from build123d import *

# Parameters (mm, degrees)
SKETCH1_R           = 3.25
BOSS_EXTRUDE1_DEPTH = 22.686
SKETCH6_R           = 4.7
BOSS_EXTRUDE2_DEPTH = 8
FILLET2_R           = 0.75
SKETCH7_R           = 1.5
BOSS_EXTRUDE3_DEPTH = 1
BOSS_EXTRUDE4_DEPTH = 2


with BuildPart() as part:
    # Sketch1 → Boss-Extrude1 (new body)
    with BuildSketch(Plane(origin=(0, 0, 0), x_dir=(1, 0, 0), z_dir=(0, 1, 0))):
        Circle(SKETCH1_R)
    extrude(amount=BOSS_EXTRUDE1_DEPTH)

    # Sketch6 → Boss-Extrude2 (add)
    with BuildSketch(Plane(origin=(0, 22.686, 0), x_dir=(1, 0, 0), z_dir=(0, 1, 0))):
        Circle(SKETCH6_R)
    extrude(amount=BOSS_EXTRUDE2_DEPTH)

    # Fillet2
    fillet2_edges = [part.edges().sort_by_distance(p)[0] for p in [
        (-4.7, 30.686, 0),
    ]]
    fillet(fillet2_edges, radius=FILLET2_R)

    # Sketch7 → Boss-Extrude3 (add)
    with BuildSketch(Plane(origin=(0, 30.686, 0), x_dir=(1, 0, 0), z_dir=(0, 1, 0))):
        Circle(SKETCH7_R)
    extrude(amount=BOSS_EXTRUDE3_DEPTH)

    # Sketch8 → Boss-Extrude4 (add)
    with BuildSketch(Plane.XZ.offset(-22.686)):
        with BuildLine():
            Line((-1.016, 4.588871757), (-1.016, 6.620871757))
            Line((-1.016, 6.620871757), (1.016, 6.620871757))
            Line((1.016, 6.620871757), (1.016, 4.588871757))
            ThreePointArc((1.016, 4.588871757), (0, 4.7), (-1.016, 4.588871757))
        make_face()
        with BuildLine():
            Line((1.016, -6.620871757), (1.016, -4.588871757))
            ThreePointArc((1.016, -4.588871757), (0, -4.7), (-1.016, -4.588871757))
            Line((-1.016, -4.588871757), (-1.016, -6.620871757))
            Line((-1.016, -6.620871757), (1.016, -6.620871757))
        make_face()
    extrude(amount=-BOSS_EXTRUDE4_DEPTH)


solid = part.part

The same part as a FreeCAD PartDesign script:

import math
import FreeCAD as App
import Part
import Sketcher
Q = App.Units.Quantity


def edges_at(feature, points):
    """Names of the edges that pass closest to the given points."""
    edges = feature.Shape.Edges
    near = lambda p: min(range(len(edges)), key=lambda i: edges[i].distToShape(Part.Vertex(*p))[0])
    return sorted({f"Edge{near(p) + 1}" for p in points})

doc = App.newDocument("Part")
body = doc.addObject("PartDesign::Body", "Body")

sketch1 = doc.addObject("Sketcher::SketchObject", "Sketch")
body.addObject(sketch1)
sketch1.AttachmentSupport = (doc.XZ_Plane, [""])
sketch1.MapMode = "FlatFace"
sketch1.addGeometry(Part.Circle(App.Vector(0, 0, 0), App.Vector(0, 0, 1), 3.2), False)
sketch1.addConstraint([
    Sketcher.Constraint("Coincident", 0, 3, -1, 1),
    Sketcher.Constraint("Diameter", 0, Q("6.5 mm")),
])
pad1 = doc.addObject("PartDesign::Pad", "Pad")
body.addObject(pad1)
pad1.Profile = sketch1
pad1.Length = 22.686
pad1.Reversed = True

sketch2 = doc.addObject("Sketcher::SketchObject", "Sketch001")
body.addObject(sketch2)
sketch2.AttachmentSupport = (doc.XZ_Plane, [""])
sketch2.MapMode = "FlatFace"
sketch2.AttachmentOffset = App.Placement(App.Vector(0, 0, -22.686), App.Rotation())
sketch2.addGeometry(Part.Circle(App.Vector(0, 0, 0), App.Vector(0, 0, 1), 4.7), False)
sketch2.addConstraint([
    Sketcher.Constraint("Coincident", 0, 3, -1, 1),
    Sketcher.Constraint("Diameter", 0, Q("9.4 mm")),
])
pad2 = doc.addObject("PartDesign::Pad", "Pad001")
body.addObject(pad2)
pad2.Profile = sketch2
pad2.Length = 8
pad2.Reversed = True
doc.recompute()

fillet = doc.addObject("PartDesign::Fillet", "Fillet")
body.addObject(fillet)
fillet.Base = (pad2, edges_at(pad2, [(-4.7, 30.686, 0)]))
fillet.Radius = 0.75

sketch3 = doc.addObject("Sketcher::SketchObject", "Sketch002")
body.addObject(sketch3)
sketch3.AttachmentSupport = (doc.XZ_Plane, [""])
sketch3.MapMode = "FlatFace"
sketch3.AttachmentOffset = App.Placement(App.Vector(0, 0, -30.686), App.Rotation())
sketch3.addGeometry(Part.Circle(App.Vector(0, 0, 0), App.Vector(0, 0, 1), 1.5), False)
sketch3.addConstraint([
    Sketcher.Constraint("Coincident", 0, 3, -1, 1),
    Sketcher.Constraint("Diameter", 0, Q("3 mm")),
])
pad3 = doc.addObject("PartDesign::Pad", "Pad002")
body.addObject(pad3)
pad3.Profile = sketch3
pad3.Length = 1
pad3.Reversed = True

sketch4 = doc.addObject("Sketcher::SketchObject", "Sketch003")
body.addObject(sketch4)
sketch4.AttachmentSupport = (doc.XZ_Plane, [""])
sketch4.MapMode = "FlatFace"
sketch4.AttachmentOffset = App.Placement(App.Vector(0, 0, -22.686), App.Rotation())
sketch4.addGeometry([
    Part.LineSegment(App.Vector(-1, 6.6, 0), App.Vector(-1, 4.6, 0)),
    Part.ArcOfCircle(Part.Circle(App.Vector(0, 0, 0), App.Vector(0, 0, 1), 4.7), math.radians(78), math.radians(102)),
    Part.LineSegment(App.Vector(1, 4.6, 0), App.Vector(1, 6.6, 0)),
    Part.LineSegment(App.Vector(1, 6.6, 0), App.Vector(-1, 6.6, 0)),
    Part.LineSegment(App.Vector(1, -6.6, 0), App.Vector(1, -4.6, 0)),
    Part.ArcOfCircle(Part.Circle(App.Vector(0, 0, 0), App.Vector(0, 0, 1), 4.7), math.radians(-102), math.radians(-78)),
    Part.LineSegment(App.Vector(-1, -4.6, 0), App.Vector(-1, -6.6, 0)),
    Part.LineSegment(App.Vector(-1, -6.6, 0), App.Vector(1, -6.6, 0)),
], False)
sketch4.addConstraint([
    Sketcher.Constraint("Coincident", 0, 2, 1, 2),
    Sketcher.Constraint("Coincident", 1, 1, 2, 1),
    Sketcher.Constraint("Coincident", 2, 2, 3, 1),
    Sketcher.Constraint("Coincident", 3, 2, 0, 1),
    Sketcher.Constraint("Coincident", 4, 2, 5, 2),
    Sketcher.Constraint("Coincident", 5, 1, 6, 1),
    Sketcher.Constraint("Coincident", 6, 2, 7, 1),
    Sketcher.Constraint("Coincident", 7, 2, 4, 1),
    Sketcher.Constraint("Vertical", 0),
    Sketcher.Constraint("Vertical", 2),
    Sketcher.Constraint("Horizontal", 3),
    Sketcher.Constraint("Vertical", 4),
    Sketcher.Constraint("Vertical", 6),
    Sketcher.Constraint("Horizontal", 7),
    Sketcher.Constraint("Coincident", 1, 3, -1, 1),
    Sketcher.Constraint("Coincident", 5, 3, -1, 1),
    Sketcher.Constraint("Equal", 1, 5),
    Sketcher.Constraint("Symmetric", 2, 2, 6, 2, -1, 1),
    Sketcher.Constraint("Horizontal", 0, 2, 1, 1),
    Sketcher.Constraint("Horizontal", 4, 2, 5, 1),
    Sketcher.Constraint("Equal", 7, 0),
    Sketcher.Constraint("Radius", 1, Q("4.7 mm")),
    Sketcher.Constraint("DistanceX", 3, 2, 3, 1, Q("2.032 mm")),
])
pad4 = doc.addObject("PartDesign::Pad", "Pad003")
body.addObject(pad4)
pad4.Profile = sketch4
pad4.Length = 2
pad4.Reversed = True

doc.recompute()
